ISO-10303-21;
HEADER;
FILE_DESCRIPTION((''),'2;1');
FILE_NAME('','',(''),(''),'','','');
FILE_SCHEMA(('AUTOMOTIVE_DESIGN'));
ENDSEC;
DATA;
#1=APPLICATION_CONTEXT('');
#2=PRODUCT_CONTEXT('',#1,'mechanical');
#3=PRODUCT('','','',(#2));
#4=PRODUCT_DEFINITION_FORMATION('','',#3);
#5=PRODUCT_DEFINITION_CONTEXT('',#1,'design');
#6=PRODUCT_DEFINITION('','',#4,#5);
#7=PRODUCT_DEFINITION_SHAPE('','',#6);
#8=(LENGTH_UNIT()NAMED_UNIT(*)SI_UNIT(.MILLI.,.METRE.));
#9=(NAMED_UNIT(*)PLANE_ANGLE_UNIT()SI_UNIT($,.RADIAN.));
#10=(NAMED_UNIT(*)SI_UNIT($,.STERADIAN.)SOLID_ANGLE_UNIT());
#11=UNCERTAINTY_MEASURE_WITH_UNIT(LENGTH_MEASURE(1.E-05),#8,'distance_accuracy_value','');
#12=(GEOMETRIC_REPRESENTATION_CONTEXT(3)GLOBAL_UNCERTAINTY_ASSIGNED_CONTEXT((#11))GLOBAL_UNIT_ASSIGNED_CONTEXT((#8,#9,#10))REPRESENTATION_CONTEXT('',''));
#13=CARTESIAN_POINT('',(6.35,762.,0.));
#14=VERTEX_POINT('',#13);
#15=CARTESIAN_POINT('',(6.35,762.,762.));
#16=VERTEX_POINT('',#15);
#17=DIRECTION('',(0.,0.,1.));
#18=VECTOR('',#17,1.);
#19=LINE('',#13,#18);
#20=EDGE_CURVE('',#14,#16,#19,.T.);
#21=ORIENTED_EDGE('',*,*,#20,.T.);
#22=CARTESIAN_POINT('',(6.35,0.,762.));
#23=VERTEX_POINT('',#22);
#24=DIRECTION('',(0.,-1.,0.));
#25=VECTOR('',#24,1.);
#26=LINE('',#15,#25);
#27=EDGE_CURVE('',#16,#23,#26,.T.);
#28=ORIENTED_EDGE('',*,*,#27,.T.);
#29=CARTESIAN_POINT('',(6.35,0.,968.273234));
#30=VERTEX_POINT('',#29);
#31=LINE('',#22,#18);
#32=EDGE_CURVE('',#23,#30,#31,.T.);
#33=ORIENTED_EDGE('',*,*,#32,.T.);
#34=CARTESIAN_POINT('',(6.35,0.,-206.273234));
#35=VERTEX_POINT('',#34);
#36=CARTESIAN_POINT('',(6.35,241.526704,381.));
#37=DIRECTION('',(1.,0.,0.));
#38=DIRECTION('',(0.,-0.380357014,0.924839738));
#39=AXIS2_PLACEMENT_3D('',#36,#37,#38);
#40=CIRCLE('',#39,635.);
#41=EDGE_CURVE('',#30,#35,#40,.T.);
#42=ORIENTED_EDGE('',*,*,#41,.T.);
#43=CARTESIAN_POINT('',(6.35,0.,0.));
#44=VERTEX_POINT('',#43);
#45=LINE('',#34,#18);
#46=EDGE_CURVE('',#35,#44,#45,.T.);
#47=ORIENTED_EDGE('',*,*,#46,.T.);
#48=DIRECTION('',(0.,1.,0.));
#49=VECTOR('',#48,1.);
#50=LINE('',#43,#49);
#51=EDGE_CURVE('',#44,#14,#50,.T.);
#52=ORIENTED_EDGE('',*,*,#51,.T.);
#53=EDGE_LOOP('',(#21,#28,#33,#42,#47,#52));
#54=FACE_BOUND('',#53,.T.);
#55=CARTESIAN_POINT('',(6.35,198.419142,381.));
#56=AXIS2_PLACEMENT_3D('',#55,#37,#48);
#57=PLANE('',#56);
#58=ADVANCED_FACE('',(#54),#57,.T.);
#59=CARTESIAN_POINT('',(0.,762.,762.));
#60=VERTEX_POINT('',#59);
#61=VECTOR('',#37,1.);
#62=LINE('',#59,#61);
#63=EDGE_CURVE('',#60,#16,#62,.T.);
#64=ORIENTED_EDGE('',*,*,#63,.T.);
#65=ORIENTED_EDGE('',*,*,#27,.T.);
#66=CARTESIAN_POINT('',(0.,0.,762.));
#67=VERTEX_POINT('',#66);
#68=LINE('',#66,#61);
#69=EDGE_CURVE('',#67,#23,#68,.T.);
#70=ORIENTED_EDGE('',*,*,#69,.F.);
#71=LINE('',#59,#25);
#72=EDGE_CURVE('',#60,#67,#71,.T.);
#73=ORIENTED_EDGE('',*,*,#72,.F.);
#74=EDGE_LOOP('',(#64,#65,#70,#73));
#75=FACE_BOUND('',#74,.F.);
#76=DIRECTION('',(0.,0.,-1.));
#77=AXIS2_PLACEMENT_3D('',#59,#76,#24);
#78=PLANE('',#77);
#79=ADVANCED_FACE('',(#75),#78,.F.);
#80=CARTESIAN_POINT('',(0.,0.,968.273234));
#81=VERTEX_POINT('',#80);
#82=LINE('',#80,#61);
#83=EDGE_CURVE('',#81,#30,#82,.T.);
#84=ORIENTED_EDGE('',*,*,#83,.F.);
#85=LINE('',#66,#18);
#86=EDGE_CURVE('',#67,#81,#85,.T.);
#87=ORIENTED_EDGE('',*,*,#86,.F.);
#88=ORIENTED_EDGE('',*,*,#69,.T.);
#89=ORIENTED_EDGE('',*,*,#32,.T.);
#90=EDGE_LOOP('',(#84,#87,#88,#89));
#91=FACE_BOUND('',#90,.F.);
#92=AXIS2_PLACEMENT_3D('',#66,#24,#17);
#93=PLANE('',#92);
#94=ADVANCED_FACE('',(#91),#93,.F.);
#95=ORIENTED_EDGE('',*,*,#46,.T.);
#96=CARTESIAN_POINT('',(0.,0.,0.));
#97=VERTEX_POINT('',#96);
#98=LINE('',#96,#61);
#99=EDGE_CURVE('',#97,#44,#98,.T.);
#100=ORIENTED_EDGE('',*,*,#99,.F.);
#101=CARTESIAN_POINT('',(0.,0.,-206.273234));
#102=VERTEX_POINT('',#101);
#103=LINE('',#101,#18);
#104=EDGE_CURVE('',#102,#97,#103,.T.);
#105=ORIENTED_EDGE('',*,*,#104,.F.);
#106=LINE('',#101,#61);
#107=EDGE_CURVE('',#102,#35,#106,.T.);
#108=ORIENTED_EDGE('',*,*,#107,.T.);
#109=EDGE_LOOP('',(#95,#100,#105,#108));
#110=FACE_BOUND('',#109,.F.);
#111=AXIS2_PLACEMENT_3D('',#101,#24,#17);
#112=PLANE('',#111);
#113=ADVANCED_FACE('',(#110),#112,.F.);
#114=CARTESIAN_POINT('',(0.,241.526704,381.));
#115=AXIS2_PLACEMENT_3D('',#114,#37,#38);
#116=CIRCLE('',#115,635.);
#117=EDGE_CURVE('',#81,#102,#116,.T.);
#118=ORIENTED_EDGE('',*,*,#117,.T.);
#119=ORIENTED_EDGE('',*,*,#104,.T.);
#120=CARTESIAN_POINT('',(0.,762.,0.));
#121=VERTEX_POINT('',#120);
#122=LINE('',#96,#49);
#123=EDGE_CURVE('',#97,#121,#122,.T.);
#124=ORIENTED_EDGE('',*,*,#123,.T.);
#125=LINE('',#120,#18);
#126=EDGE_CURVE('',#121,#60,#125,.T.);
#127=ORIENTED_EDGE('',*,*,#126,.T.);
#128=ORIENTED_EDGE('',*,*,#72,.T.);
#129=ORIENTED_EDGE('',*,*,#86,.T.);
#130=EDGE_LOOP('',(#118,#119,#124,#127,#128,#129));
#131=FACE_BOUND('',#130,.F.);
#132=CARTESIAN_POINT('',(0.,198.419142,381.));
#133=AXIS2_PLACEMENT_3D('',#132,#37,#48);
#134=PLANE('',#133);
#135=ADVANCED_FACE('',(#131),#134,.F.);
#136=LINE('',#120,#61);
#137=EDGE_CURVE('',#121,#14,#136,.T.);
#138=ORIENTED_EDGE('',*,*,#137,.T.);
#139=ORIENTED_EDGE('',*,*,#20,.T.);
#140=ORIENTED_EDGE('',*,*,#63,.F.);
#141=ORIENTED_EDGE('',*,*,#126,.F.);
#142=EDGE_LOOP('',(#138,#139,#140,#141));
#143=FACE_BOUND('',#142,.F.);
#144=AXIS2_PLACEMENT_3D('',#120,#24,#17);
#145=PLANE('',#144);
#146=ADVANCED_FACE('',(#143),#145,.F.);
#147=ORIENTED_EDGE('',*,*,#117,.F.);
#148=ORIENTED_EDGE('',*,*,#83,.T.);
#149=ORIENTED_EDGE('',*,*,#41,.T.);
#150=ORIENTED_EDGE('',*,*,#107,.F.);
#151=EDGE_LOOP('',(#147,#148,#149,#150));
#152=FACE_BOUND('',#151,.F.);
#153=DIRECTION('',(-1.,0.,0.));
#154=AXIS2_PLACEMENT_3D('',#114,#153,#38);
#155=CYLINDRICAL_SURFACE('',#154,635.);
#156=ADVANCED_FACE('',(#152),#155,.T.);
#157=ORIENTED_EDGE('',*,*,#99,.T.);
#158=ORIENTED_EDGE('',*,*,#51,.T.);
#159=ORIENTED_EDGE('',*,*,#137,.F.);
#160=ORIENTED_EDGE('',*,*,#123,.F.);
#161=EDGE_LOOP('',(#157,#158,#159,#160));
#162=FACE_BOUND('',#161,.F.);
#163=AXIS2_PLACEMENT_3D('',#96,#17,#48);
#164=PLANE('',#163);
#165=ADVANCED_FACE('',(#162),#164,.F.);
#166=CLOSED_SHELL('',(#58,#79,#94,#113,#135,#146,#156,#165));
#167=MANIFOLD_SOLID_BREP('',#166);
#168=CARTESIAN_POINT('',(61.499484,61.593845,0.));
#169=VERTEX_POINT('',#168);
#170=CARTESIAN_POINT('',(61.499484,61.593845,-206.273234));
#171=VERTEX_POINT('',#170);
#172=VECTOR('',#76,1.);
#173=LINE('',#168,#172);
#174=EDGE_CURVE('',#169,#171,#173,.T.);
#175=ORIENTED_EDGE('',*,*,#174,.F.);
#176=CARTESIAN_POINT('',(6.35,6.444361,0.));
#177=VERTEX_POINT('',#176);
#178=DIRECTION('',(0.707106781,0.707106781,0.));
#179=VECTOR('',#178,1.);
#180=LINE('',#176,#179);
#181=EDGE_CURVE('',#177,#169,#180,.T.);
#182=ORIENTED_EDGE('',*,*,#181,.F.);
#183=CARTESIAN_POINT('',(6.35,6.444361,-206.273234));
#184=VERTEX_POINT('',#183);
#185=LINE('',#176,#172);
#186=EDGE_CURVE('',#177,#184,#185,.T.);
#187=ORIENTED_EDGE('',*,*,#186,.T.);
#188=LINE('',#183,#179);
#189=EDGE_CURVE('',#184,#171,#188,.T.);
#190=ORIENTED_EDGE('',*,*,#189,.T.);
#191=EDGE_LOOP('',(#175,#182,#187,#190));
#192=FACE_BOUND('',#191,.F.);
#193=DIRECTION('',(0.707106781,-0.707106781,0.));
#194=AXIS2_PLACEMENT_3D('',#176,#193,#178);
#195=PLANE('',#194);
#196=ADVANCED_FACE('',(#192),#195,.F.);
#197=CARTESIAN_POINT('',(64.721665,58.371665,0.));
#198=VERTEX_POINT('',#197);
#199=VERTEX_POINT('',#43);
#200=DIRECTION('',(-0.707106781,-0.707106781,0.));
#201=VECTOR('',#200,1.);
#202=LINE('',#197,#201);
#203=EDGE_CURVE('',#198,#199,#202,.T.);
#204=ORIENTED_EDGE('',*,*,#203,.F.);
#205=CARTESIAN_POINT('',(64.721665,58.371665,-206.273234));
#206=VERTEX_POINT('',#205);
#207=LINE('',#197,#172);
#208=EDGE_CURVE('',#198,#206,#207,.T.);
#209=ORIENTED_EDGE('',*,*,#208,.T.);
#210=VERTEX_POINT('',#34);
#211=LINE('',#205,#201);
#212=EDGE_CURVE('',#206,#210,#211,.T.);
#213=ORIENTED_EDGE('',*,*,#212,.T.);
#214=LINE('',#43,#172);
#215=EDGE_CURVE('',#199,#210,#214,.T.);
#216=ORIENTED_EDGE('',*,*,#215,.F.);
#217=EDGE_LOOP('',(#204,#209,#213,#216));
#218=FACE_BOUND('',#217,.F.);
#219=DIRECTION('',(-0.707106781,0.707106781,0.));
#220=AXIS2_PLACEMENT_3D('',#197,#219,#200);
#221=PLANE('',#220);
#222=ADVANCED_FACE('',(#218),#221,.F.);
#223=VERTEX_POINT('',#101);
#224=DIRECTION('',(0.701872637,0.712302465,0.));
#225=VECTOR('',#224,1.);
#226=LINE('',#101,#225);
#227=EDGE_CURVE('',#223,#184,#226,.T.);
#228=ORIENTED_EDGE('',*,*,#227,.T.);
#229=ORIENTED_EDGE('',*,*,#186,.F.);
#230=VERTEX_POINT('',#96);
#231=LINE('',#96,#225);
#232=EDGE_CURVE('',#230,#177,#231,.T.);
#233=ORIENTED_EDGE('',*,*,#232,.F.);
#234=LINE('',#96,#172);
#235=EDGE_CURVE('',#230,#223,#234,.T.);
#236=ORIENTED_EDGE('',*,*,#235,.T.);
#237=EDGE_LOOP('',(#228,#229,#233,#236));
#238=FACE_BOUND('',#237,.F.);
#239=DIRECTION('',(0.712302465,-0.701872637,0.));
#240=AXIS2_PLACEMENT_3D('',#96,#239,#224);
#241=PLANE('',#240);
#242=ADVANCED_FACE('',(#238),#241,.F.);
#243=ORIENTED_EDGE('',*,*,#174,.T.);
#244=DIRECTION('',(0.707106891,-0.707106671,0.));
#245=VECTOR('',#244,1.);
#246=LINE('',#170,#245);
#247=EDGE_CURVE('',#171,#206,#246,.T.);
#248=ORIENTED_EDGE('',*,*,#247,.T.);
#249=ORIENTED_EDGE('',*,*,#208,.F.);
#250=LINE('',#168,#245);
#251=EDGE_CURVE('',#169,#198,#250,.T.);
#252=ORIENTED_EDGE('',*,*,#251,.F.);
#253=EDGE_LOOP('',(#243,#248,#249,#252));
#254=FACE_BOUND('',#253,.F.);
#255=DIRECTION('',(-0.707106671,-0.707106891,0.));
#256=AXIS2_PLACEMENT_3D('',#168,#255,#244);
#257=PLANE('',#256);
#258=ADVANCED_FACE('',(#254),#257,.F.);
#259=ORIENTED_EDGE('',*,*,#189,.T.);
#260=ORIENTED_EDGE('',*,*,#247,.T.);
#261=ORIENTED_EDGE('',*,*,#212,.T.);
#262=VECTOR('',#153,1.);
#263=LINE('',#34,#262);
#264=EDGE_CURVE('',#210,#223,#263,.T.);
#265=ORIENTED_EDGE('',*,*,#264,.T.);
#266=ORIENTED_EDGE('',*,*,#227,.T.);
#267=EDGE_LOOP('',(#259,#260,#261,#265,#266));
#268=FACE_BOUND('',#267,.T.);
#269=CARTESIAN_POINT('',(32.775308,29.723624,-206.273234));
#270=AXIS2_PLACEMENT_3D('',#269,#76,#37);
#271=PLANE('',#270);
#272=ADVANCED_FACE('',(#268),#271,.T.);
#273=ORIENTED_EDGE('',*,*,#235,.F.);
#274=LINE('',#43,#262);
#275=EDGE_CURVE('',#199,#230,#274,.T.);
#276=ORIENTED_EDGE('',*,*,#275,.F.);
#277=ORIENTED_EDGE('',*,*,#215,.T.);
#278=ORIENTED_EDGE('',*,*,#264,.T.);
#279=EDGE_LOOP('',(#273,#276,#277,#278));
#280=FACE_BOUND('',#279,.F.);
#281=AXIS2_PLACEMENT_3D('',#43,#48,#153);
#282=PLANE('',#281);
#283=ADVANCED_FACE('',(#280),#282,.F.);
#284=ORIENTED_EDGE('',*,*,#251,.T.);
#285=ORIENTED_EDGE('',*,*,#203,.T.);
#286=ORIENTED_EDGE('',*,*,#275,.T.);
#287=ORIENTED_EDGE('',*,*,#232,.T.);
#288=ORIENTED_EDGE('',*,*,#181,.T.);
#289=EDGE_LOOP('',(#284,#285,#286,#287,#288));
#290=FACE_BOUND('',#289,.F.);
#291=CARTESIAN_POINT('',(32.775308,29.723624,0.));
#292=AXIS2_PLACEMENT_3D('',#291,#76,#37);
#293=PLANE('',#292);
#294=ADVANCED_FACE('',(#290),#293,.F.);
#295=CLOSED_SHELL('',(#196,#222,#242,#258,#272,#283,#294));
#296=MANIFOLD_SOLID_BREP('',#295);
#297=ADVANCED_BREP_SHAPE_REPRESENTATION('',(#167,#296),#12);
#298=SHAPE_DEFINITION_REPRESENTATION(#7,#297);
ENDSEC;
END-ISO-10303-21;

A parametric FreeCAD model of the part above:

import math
import FreeCAD as App
import Part
import Sketcher
from FreeCAD import Vector
Q = App.Units.Quantity

doc = App.newDocument("Part")
body = doc.addObject("PartDesign::Body", "Body")

# Sketch on YZ plane
sketch1 = body.newObject("Sketcher::SketchObject", "Sketch")
sketch1.AttachmentSupport = (doc.getObject("YZ_Plane"), [""])
sketch1.MapMode = "FlatFace"
sketch1.addGeometry([
    Part.LineSegment(Vector(0, -206, 0), Vector(0, 0, 0)),  # 0
    Part.LineSegment(Vector(0, 0, 0), Vector(762, 0, 0)),  # 1
    Part.LineSegment(Vector(762, 0, 0), Vector(762, 762, 0)),  # 2
    Part.LineSegment(Vector(762, 762, 0), Vector(0, 762, 0)),  # 3
    Part.LineSegment(Vector(0, 762, 0), Vector(0, 968, 0)),  # 4
    Part.ArcOfCircle(Part.Circle(Vector(242, 381, 0), Vector(0, 0, 1), 635), math.radians(112), math.radians(248)),  # 5
], False)
sketch1.addConstraint([
    Sketcher.Constraint("Coincident", 0, 2, 1, 1),
    Sketcher.Constraint("Coincident", 1, 2, 2, 1),
    Sketcher.Constraint("Coincident", 2, 2, 3, 1),
    Sketcher.Constraint("Coincident", 3, 2, 4, 1),
    Sketcher.Constraint("Coincident", 4, 2, 5, 1),
    Sketcher.Constraint("Coincident", 5, 2, 0, 1),
    Sketcher.Constraint("Vertical", 0),
    Sketcher.Constraint("Horizontal", 1),
    Sketcher.Constraint("Vertical", 2),
    Sketcher.Constraint("Horizontal", 3),
    Sketcher.Constraint("Vertical", 4),
    Sketcher.Constraint("Coincident", 0, 2, -1, 1),
    Sketcher.Constraint("PointOnObject", 3, 2, -2),
    Sketcher.Constraint("Equal", 3, 2),
    Sketcher.Constraint("Equal", 0, 4),
    Sketcher.Constraint("Radius", 5, Q("25 in")),
    Sketcher.Constraint("DistanceX", 1, 1, 1, 2, Q("30 in")),
    Sketcher.Constraint("DistanceY", 0, 1, 0, 2, 206.273234),
])
pad1 = body.newObject("PartDesign::Pad", "Pad")
pad1.Profile = sketch1
pad1.Length = Q("0.25 in")
body2 = doc.addObject("PartDesign::Body", "Body001")

# Sketch on XY plane
sketch2 = body2.newObject("Sketcher::SketchObject", "Sketch001")
sketch2.AttachmentSupport = (doc.getObject("XY_Plane001"), [""])
sketch2.MapMode = "FlatFace"
sketch2.addGeometry([
    Part.LineSegment(Vector(64.7, 58.4, 0), Vector(6.3, 0, 0)),  # 0
    Part.LineSegment(Vector(6.3, 0, 0), Vector(0, 0, 0)),  # 1
    Part.LineSegment(Vector(0, 0, 0), Vector(6.3, 6.4, 0)),  # 2
    Part.LineSegment(Vector(6.3, 6.4, 0), Vector(61.5, 61.6, 0)),  # 3
    Part.LineSegment(Vector(61.5, 61.6, 0), Vector(64.7, 58.4, 0)),  # 4
], False)
sketch2.addConstraint([
    Sketcher.Constraint("Coincident", 0, 2, 1, 1),
    Sketcher.Constraint("Coincident", 1, 2, 2, 1),
    Sketcher.Constraint("Coincident", 2, 2, 3, 1),
    Sketcher.Constraint("Coincident", 3, 2, 4, 1),
    Sketcher.Constraint("Coincident", 4, 2, 0, 1),
    Sketcher.Constraint("Horizontal", 1),
    Sketcher.Constraint("Coincident", 1, 2, -1, 1),
    Sketcher.Constraint("Parallel", 0, 3),
    Sketcher.Constraint("Perpendicular", 3, 4),
    Sketcher.Constraint("Vertical", 0, 2, 2, 2),
    Sketcher.Constraint("Angle", 0, Q("-135 deg")),
    Sketcher.Constraint("DistanceX", 1, 2, 1, 1, Q("0.25 in")),
    Sketcher.Constraint("Distance", 0, Q("3.25 in")),
    Sketcher.Constraint("Distance", 3, 77.993148),
])
pad2 = body2.newObject("PartDesign::Pad", "Pad001")
pad2.Profile = sketch2
pad2.Length = 206.273234
pad2.Reversed = True

doc.recompute()
